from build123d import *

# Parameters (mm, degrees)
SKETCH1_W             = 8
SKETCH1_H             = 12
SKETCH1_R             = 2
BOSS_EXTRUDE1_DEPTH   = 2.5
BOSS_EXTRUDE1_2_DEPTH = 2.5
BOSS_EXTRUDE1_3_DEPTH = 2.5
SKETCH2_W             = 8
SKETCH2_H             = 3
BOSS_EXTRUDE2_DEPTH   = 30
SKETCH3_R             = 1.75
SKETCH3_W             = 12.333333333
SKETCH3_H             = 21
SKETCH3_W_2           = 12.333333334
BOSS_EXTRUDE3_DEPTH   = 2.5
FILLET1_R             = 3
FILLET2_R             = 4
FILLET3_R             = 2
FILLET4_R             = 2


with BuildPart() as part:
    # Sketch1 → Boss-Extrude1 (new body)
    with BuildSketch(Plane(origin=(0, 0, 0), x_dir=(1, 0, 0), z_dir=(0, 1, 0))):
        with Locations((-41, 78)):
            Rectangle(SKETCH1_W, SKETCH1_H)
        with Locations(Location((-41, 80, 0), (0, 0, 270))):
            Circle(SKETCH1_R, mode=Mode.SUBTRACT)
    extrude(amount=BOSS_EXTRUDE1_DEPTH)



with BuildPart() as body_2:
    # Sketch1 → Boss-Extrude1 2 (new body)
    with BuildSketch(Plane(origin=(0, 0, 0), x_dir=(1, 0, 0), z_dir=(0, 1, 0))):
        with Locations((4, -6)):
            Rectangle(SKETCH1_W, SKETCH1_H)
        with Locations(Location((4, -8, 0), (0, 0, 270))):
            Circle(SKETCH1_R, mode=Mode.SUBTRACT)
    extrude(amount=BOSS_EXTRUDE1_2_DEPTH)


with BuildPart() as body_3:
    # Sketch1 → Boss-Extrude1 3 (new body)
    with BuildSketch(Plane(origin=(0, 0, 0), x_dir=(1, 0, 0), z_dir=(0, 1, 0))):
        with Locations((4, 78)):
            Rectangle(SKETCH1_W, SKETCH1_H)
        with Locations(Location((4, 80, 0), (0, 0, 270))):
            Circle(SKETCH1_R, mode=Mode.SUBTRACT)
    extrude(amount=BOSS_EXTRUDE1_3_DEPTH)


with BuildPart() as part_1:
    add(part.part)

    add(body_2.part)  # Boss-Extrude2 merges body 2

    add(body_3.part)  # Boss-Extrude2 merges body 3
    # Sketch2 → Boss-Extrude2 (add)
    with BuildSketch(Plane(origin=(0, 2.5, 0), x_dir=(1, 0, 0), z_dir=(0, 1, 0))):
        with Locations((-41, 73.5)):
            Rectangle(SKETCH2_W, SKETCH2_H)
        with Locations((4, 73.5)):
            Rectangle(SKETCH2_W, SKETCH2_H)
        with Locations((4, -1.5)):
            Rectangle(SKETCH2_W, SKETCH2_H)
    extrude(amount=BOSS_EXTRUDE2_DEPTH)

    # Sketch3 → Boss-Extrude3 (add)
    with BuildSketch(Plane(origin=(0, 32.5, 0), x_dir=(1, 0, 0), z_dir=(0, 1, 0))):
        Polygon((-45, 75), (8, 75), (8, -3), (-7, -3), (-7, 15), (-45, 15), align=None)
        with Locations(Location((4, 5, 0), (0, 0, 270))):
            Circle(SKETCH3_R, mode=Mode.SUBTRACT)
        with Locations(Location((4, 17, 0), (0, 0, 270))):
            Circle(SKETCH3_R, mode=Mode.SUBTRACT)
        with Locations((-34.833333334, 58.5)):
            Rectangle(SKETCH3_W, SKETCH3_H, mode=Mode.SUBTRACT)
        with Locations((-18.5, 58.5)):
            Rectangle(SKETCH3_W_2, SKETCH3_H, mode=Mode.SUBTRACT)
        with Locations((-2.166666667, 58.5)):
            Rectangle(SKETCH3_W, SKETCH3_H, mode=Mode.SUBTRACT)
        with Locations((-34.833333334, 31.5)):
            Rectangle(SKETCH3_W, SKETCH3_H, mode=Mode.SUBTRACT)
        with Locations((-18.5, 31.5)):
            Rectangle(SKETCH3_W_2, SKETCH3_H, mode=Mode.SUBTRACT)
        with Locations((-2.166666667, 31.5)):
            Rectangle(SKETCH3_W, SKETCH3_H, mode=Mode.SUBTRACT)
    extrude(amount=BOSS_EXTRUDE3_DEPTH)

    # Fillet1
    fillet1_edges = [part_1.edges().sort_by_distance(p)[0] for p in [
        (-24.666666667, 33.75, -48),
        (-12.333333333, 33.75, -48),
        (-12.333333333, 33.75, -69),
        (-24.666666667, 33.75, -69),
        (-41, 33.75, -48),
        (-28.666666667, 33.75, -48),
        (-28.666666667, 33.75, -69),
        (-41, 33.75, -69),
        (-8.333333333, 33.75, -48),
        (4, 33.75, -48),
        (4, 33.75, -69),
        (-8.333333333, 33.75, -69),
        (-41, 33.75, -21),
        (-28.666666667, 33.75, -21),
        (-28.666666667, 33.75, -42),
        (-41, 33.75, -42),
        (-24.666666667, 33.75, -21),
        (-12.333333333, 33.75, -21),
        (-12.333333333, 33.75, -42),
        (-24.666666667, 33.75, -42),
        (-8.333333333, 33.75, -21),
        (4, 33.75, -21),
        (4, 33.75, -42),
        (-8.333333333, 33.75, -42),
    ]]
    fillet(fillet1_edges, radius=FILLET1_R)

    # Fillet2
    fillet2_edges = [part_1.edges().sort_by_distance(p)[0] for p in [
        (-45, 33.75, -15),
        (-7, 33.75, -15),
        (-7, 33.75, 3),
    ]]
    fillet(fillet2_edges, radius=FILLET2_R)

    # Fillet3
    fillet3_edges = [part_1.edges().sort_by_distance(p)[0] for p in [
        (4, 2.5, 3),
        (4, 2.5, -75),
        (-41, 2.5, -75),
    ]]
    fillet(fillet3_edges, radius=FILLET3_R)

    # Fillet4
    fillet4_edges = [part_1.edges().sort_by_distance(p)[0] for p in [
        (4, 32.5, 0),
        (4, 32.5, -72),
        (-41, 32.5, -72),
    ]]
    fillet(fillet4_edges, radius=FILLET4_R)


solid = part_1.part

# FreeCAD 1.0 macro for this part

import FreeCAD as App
import Part
import Sketcher

V = App.Vector


def edges_at(feature, points):
    """Names of the edges that pass closest to the given points."""
    edges = feature.Shape.Edges
    near = lambda p: min(range(len(edges)), key=lambda i: edges[i].distToShape(Part.Vertex(*p))[0])
    return sorted({f"Edge{near(p) + 1}" for p in points})


def add_polygon(sketch, points):
    """Adds a closed chain of lines whose ends are joined by coincident constraints."""
    first, n = sketch.GeometryCount, len(points)
    for a, b in zip(points, points[1:] + points[:1]):
        sketch.addGeometry(Part.LineSegment(App.Vector(*a, 0), App.Vector(*b, 0)), False)
    for i in range(n):
        sketch.addConstraint(Sketcher.Constraint("Coincident", first + i, 2, first + (i + 1) % n, 1))

doc = App.newDocument("Part")
body = doc.addObject("PartDesign::Body", "Body")

# Sketch on XZ plane
sketch1 = body.newObject("Sketcher::SketchObject", "Sketch")
sketch1.AttachmentSupport = (doc.getObject("XZ_Plane"), [""])
sketch1.MapMode = "FlatFace"
add_polygon(sketch1, [(-45, -84), (-45, -72), (-37, -72), (-37, -84)])  # lines 0-3
sketch1.addGeometry(Part.Circle(V(-41, -80, 0), V(0, 0, 1), 2), False)  # 4
sketch1.addConstraint([
    Sketcher.Constraint("Vertical", 0),
    Sketcher.Constraint("Horizontal", 1),
    Sketcher.Constraint("Vertical", 2),
    Sketcher.Constraint("Horizontal", 3),
    Sketcher.Constraint("Diameter", 4, 4.0),
    Sketcher.Constraint("DistanceX", 1, 1, 1, 2, 8.0),
    Sketcher.Constraint("DistanceY", 0, 1, 0, 2, 12.0),
    Sketcher.Constraint("DistanceX", 4, 3, -1, 1, 41.0),
    Sketcher.Constraint("DistanceY", 4, 3, -1, 1, 80.0),
    Sketcher.Constraint("DistanceX", 0, 2, -1, 1, 45.0),
    Sketcher.Constraint("DistanceY", 0, 2, -1, 1, 72.0),
])
pad1 = body.newObject("PartDesign::Pad", "Pad")
pad1.Profile = sketch1
pad1.Length = 2.5
pad1.Reversed = True
body2 = doc.addObject("PartDesign::Body", "Body001")

# Sketch on XZ plane
sketch2 = body2.newObject("Sketcher::SketchObject", "Sketch001")
sketch2.AttachmentSupport = (doc.getObject("XZ_Plane001"), [""])
sketch2.MapMode = "FlatFace"
add_polygon(sketch2, [(0, 0), (0, 12), (8, 12), (8, 0)])  # lines 0-3
sketch2.addGeometry(Part.Circle(V(4, 8, 0), V(0, 0, 1), 2), False)  # 4
sketch2.addConstraint([
    Sketcher.Constraint("Vertical", 0),
    Sketcher.Constraint("Horizontal", 1),
    Sketcher.Constraint("Vertical", 2),
    Sketcher.Constraint("Horizontal", 3),
    Sketcher.Constraint("Coincident", 3, 2, -1, 1),
    Sketcher.Constraint("Diameter", 4, 4.0),
    Sketcher.Constraint("DistanceX", 1, 1, 1, 2, 8.0),
    Sketcher.Constraint("DistanceY", 0, 1, 0, 2, 12.0),
    Sketcher.Constraint("DistanceX", -1, 1, 4, 3, 4.0),
    Sketcher.Constraint("DistanceY", -1, 1, 4, 3, 8.0),
])
pad2 = body2.newObject("PartDesign::Pad", "Pad001")
pad2.Profile = sketch2
pad2.Length = 2.5
pad2.Reversed = True
body3 = doc.addObject("PartDesign::Body", "Body002")

# Sketch on XZ plane
sketch3 = body3.newObject("Sketcher::SketchObject", "Sketch002")
sketch3.AttachmentSupport = (doc.getObject("XZ_Plane002"), [""])
sketch3.MapMode = "FlatFace"
add_polygon(sketch3, [(0, -84), (0, -72), (8, -72), (8, -84)])  # lines 0-3
sketch3.addGeometry(Part.Circle(V(4, -80, 0), V(0, 0, 1), 2), False)  # 4
sketch3.addConstraint([
    Sketcher.Constraint("Vertical", 0),
    Sketcher.Constraint("Horizontal", 1),
    Sketcher.Constraint("Vertical", 2),
    Sketcher.Constraint("Horizontal", 3),
    Sketcher.Constraint("PointOnObject", 0, 2, -2),
    Sketcher.Constraint("Diameter", 4, 4.0),
    Sketcher.Constraint("DistanceX", 1, 1, 1, 2, 8.0),
    Sketcher.Constraint("DistanceY", 0, 1, 0, 2, 12.0),
    Sketcher.Constraint("DistanceX", -1, 1, 4, 3, 4.0),
    Sketcher.Constraint("DistanceY", 4, 3, -1, 1, 80.0),
    Sketcher.Constraint("DistanceY", 0, 2, -1, 1, 72.0),
])
pad3 = body3.newObject("PartDesign::Pad", "Pad002")
pad3.Profile = sketch3
pad3.Length = 2.5
pad3.Reversed = True
body.AllowCompound = True
doc.recompute()

boolean = body.newObject("PartDesign::Boolean", "Boolean")
boolean.Type = "Fuse"
boolean.addObjects([body2])
doc.recompute()

boolean2 = body.newObject("PartDesign::Boolean", "Boolean001")
boolean2.Type = "Fuse"
boolean2.addObjects([body3])

# Sketch on XZ plane
sketch4 = body.newObject("Sketcher::SketchObject", "Sketch003")
sketch4.AttachmentSupport = (doc.getObject("XZ_Plane"), [""])
sketch4.MapMode = "FlatFace"
sketch4.AttachmentOffset = App.Placement(V(0, 0, -2.5), App.Rotation())
add_polygon(sketch4, [(-45, -75), (-45, -72), (-37, -72), (-37, -75)])  # lines 0-3
add_polygon(sketch4, [(0, -75), (0, -72), (8, -72), (8, -75)])  # lines 4-7
add_polygon(sketch4, [(0, 0), (0, 3), (8, 3), (8, 0)])  # lines 8-11
sketch4.addConstraint([
    Sketcher.Constraint("Vertical", 0),
    Sketcher.Constraint("Horizontal", 1),
    Sketcher.Constraint("Vertical", 2),
    Sketcher.Constraint("Horizontal", 3),
    Sketcher.Constraint("Vertical", 4),
    Sketcher.Constraint("Horizontal", 5),
    Sketcher.Constraint("Vertical", 6),
    Sketcher.Constraint("Horizontal", 7),
    Sketcher.Constraint("Vertical", 8),
    Sketcher.Constraint("Horizontal", 9),
    Sketcher.Constraint("Vertical", 10),
    Sketcher.Constraint("Horizontal", 11),
    Sketcher.Constraint("Coincident", 11, 2, -1, 1),
    Sketcher.Constraint("PointOnObject", 4, 2, -2),
    Sketcher.Constraint("Horizontal", 1, 2, 4, 2),
    Sketcher.Constraint("Horizontal", 3, 2, 6, 2),
    Sketcher.Constraint("Vertical", 6, 2, 9, 2),
    Sketcher.Constraint("Equal", 3, 5),
    Sketcher.Constraint("Equal", 6, 8),
    Sketcher.Constraint("DistanceX", 1, 1, 1, 2, 8.0),
    Sketcher.Constraint("DistanceY", 0, 1, 0, 2, 3.0),
    Sketcher.Constraint("DistanceX", 0, 2, -1, 1, 45.0),
    Sketcher.Constraint("DistanceY", 0, 2, -1, 1, 72.0),
])
pad4 = body.newObject("PartDesign::Pad", "Pad003")
pad4.Profile = sketch4
pad4.Length = 30
pad4.Reversed = True

# Sketch on XZ plane
sketch5 = body.newObject("Sketcher::SketchObject", "Sketch004")
sketch5.AttachmentSupport = (doc.getObject("XZ_Plane"), [""])
sketch5.MapMode = "FlatFace"
sketch5.AttachmentOffset = App.Placement(V(0, 0, -32.5), App.Rotation())
add_polygon(sketch5, [(8, -75), (-45, -75), (-45, -15), (-7, -15), (-7, 3), (8, 3)])  # lines 0-5
sketch5.addGeometry(Part.Circle(V(4, -5, 0), V(0, 0, 1), 1.75), False)  # 6
sketch5.addGeometry(Part.Circle(V(4, -17, 0), V(0, 0, 1), 1.75), False)  # 7
add_polygon(sketch5, [(-8.333333, -21), (-8.333333, -42), (4, -42), (4, -21)])  # lines 8-11
add_polygon(sketch5, [(-24.666667, -21), (-24.666667, -42), (-12.333333, -42), (-12.333333, -21)])  # lines 12-15
add_polygon(sketch5, [(-41, -21), (-41, -42), (-28.666667, -42), (-28.666667, -21)])  # lines 16-19
add_polygon(sketch5, [(-8.333333, -48), (-8.333333, -69), (4, -69), (4, -48)])  # lines 20-23
add_polygon(sketch5, [(-24.666667, -48), (-24.666667, -69), (-12.333333, -69), (-12.333333, -48)])  # lines 24-27
add_polygon(sketch5, [(-41, -48), (-41, -69), (-28.666667, -69), (-28.666667, -48)])  # lines 28-31
sketch5.addConstraint([
    Sketcher.Constraint("Horizontal", 0),
    Sketcher.Constraint("Vertical", 1),
    Sketcher.Constraint("Horizontal", 2),
    Sketcher.Constraint("Vertical", 3),
    Sketcher.Constraint("Horizontal", 4),
    Sketcher.Constraint("Vertical", 5),
    Sketcher.Constraint("Vertical", 8),
    Sketcher.Constraint("Horizontal", 9),
    Sketcher.Constraint("Vertical", 10),
    Sketcher.Constraint("Horizontal", 11),
    Sketcher.Constraint("Vertical", 12),
    Sketcher.Constraint("Horizontal", 13),
    Sketcher.Constraint("Vertical", 14),
    Sketcher.Constraint("Horizontal", 15),
    Sketcher.Constraint("Vertical", 16),
    Sketcher.Constraint("Horizontal", 17),
    Sketcher.Constraint("Vertical", 18),
    Sketcher.Constraint("Horizontal", 19),
    Sketcher.Constraint("Vertical", 20),
    Sketcher.Constraint("Horizontal", 21),
    Sketcher.Constraint("Vertical", 22),
    Sketcher.Constraint("Horizontal", 23),
    Sketcher.Constraint("Vertical", 24),
    Sketcher.Constraint("Horizontal", 25),
    Sketcher.Constraint("Vertical", 26),
    Sketcher.Constraint("Horizontal", 27),
    Sketcher.Constraint("Vertical", 28),
    Sketcher.Constraint("Horizontal", 29),
    Sketcher.Constraint("Vertical", 30),
    Sketcher.Constraint("Horizontal", 31),
    Sketcher.Constraint("Equal", 6, 7),
    Sketcher.Constraint("Horizontal", 9, 2, 12, 2),
    Sketcher.Constraint("Horizontal", 11, 2, 14, 2),
    Sketcher.Constraint("Horizontal", 13, 2, 16, 2),
    Sketcher.Constraint("Horizontal", 15, 2, 18, 2),
    Sketcher.Constraint("Horizontal", 21, 2, 24, 2),
    Sketcher.Constraint("Horizontal", 23, 2, 26, 2),
    Sketcher.Constraint("Horizontal", 25, 2, 28, 2),
    Sketcher.Constraint("Horizontal", 27, 2, 30, 2),
    Sketcher.Constraint("Vertical", 6, 3, 7, 3),
    Sketcher.Constraint("Vertical", 7, 3, 9, 2),
    Sketcher.Constraint("Vertical", 11, 2, 20, 2),
    Sketcher.Constraint("Vertical", 10, 2, 21, 2),
    Sketcher.Constraint("Vertical", 15, 2, 24, 2),
    Sketcher.Constraint("Vertical", 14, 2, 25, 2),
    Sketcher.Constraint("Vertical", 19, 2, 28, 2),
    Sketcher.Constraint("Vertical", 18, 2, 29, 2),
    Sketcher.Constraint("Equal", 11, 13),
    Sketcher.Constraint("Equal", 15, 17),
    Sketcher.Constraint("Equal", 18, 20),
    Sketcher.Constraint("Diameter", 6, 3.5),
    Sketcher.Constraint("DistanceX", 0, 2, 0, 1, 53.0),
    Sketcher.Constraint("DistanceX", 2, 1, 2, 2, 38.0),
    Sketcher.Constraint("DistanceY", 1, 1, 1, 2, 60.0),
    Sketcher.Constraint("DistanceY", 3, 1, 3, 2, 18.0),
    Sketcher.Constraint("DistanceY", 8, 2, 8, 1, 21.0),
    Sketcher.Constraint("DistanceX", -1, 1, 6, 3, 4.0),
    Sketcher.Constraint("DistanceY", 6, 3, -1, 1, 5.0),
    Sketcher.Constraint("DistanceY", 7, 3, -1, 1, 17.0),
    Sketcher.Constraint("DistanceX", 0, 2, -1, 1, 45.0),
    Sketcher.Constraint("DistanceY", 0, 2, -1, 1, 75.0),
    Sketcher.Constraint("DistanceY", 8, 2, -1, 1, 42.0),
    Sketcher.Constraint("DistanceX", 16, 2, -1, 1, 41.0),
    Sketcher.Constraint("DistanceY", 20, 2, -1, 1, 69.0),
    Sketcher.Constraint("DistanceX", 13, 2, 8, 2, 4.0),
    Sketcher.Constraint("DistanceX", 17, 2, 12, 2, 4.0),
])
pad5 = body.newObject("PartDesign::Pad", "Pad004")
pad5.Profile = sketch5
pad5.Length = 2.5
pad5.Reversed = True
doc.recompute()

fillet = body.newObject("PartDesign::Fillet", "Fillet")
fillet.Base = (pad5, edges_at(pad5, [
    (-24.667, 33.75, -48),
    (-12.333, 33.75, -48),
    (-12.333, 33.75, -69),
    (-24.667, 33.75, -69),
    (-41, 33.75, -48),
    (-28.667, 33.75, -48),
    (-28.667, 33.75, -69),
    (-41, 33.75, -69),
    (-8.333, 33.75, -48),
    (4, 33.75, -48),
    (4, 33.75, -69),
    (-8.333, 33.75, -69),
    (-41, 33.75, -21),
    (-28.667, 33.75, -21),
    (-28.667, 33.75, -42),
    (-41, 33.75, -42),
    (-24.667, 33.75, -21),
    (-12.333, 33.75, -21),
    (-12.333, 33.75, -42),
    (-24.667, 33.75, -42),
    (-8.333, 33.75, -21),
    (4, 33.75, -21),
    (4, 33.75, -42),
    (-8.333, 33.75, -42),
]))
fillet.Radius = 3
doc.recompute()

fillet2 = body.newObject("PartDesign::Fillet", "Fillet001")
fillet2.Base = (fillet, edges_at(fillet, [(-45, 33.75, -15), (-7, 33.75, -15), (-7, 33.75, 3)]))
fillet2.Radius = 4
doc.recompute()

fillet3 = body.newObject("PartDesign::Fillet", "Fillet002")
fillet3.Base = (fillet2, edges_at(fillet2, [(4, 2.5, 3), (4, 2.5, -75), (-41, 2.5, -75)]))
fillet3.Radius = 2
doc.recompute()

fillet4 = body.newObject("PartDesign::Fillet", "Fillet003")
fillet4.Base = (fillet3, edges_at(fillet3, [(4, 32.5, 0), (4, 32.5, -72), (-41, 32.5, -72)]))
fillet4.Radius = 2

doc.recompute()
